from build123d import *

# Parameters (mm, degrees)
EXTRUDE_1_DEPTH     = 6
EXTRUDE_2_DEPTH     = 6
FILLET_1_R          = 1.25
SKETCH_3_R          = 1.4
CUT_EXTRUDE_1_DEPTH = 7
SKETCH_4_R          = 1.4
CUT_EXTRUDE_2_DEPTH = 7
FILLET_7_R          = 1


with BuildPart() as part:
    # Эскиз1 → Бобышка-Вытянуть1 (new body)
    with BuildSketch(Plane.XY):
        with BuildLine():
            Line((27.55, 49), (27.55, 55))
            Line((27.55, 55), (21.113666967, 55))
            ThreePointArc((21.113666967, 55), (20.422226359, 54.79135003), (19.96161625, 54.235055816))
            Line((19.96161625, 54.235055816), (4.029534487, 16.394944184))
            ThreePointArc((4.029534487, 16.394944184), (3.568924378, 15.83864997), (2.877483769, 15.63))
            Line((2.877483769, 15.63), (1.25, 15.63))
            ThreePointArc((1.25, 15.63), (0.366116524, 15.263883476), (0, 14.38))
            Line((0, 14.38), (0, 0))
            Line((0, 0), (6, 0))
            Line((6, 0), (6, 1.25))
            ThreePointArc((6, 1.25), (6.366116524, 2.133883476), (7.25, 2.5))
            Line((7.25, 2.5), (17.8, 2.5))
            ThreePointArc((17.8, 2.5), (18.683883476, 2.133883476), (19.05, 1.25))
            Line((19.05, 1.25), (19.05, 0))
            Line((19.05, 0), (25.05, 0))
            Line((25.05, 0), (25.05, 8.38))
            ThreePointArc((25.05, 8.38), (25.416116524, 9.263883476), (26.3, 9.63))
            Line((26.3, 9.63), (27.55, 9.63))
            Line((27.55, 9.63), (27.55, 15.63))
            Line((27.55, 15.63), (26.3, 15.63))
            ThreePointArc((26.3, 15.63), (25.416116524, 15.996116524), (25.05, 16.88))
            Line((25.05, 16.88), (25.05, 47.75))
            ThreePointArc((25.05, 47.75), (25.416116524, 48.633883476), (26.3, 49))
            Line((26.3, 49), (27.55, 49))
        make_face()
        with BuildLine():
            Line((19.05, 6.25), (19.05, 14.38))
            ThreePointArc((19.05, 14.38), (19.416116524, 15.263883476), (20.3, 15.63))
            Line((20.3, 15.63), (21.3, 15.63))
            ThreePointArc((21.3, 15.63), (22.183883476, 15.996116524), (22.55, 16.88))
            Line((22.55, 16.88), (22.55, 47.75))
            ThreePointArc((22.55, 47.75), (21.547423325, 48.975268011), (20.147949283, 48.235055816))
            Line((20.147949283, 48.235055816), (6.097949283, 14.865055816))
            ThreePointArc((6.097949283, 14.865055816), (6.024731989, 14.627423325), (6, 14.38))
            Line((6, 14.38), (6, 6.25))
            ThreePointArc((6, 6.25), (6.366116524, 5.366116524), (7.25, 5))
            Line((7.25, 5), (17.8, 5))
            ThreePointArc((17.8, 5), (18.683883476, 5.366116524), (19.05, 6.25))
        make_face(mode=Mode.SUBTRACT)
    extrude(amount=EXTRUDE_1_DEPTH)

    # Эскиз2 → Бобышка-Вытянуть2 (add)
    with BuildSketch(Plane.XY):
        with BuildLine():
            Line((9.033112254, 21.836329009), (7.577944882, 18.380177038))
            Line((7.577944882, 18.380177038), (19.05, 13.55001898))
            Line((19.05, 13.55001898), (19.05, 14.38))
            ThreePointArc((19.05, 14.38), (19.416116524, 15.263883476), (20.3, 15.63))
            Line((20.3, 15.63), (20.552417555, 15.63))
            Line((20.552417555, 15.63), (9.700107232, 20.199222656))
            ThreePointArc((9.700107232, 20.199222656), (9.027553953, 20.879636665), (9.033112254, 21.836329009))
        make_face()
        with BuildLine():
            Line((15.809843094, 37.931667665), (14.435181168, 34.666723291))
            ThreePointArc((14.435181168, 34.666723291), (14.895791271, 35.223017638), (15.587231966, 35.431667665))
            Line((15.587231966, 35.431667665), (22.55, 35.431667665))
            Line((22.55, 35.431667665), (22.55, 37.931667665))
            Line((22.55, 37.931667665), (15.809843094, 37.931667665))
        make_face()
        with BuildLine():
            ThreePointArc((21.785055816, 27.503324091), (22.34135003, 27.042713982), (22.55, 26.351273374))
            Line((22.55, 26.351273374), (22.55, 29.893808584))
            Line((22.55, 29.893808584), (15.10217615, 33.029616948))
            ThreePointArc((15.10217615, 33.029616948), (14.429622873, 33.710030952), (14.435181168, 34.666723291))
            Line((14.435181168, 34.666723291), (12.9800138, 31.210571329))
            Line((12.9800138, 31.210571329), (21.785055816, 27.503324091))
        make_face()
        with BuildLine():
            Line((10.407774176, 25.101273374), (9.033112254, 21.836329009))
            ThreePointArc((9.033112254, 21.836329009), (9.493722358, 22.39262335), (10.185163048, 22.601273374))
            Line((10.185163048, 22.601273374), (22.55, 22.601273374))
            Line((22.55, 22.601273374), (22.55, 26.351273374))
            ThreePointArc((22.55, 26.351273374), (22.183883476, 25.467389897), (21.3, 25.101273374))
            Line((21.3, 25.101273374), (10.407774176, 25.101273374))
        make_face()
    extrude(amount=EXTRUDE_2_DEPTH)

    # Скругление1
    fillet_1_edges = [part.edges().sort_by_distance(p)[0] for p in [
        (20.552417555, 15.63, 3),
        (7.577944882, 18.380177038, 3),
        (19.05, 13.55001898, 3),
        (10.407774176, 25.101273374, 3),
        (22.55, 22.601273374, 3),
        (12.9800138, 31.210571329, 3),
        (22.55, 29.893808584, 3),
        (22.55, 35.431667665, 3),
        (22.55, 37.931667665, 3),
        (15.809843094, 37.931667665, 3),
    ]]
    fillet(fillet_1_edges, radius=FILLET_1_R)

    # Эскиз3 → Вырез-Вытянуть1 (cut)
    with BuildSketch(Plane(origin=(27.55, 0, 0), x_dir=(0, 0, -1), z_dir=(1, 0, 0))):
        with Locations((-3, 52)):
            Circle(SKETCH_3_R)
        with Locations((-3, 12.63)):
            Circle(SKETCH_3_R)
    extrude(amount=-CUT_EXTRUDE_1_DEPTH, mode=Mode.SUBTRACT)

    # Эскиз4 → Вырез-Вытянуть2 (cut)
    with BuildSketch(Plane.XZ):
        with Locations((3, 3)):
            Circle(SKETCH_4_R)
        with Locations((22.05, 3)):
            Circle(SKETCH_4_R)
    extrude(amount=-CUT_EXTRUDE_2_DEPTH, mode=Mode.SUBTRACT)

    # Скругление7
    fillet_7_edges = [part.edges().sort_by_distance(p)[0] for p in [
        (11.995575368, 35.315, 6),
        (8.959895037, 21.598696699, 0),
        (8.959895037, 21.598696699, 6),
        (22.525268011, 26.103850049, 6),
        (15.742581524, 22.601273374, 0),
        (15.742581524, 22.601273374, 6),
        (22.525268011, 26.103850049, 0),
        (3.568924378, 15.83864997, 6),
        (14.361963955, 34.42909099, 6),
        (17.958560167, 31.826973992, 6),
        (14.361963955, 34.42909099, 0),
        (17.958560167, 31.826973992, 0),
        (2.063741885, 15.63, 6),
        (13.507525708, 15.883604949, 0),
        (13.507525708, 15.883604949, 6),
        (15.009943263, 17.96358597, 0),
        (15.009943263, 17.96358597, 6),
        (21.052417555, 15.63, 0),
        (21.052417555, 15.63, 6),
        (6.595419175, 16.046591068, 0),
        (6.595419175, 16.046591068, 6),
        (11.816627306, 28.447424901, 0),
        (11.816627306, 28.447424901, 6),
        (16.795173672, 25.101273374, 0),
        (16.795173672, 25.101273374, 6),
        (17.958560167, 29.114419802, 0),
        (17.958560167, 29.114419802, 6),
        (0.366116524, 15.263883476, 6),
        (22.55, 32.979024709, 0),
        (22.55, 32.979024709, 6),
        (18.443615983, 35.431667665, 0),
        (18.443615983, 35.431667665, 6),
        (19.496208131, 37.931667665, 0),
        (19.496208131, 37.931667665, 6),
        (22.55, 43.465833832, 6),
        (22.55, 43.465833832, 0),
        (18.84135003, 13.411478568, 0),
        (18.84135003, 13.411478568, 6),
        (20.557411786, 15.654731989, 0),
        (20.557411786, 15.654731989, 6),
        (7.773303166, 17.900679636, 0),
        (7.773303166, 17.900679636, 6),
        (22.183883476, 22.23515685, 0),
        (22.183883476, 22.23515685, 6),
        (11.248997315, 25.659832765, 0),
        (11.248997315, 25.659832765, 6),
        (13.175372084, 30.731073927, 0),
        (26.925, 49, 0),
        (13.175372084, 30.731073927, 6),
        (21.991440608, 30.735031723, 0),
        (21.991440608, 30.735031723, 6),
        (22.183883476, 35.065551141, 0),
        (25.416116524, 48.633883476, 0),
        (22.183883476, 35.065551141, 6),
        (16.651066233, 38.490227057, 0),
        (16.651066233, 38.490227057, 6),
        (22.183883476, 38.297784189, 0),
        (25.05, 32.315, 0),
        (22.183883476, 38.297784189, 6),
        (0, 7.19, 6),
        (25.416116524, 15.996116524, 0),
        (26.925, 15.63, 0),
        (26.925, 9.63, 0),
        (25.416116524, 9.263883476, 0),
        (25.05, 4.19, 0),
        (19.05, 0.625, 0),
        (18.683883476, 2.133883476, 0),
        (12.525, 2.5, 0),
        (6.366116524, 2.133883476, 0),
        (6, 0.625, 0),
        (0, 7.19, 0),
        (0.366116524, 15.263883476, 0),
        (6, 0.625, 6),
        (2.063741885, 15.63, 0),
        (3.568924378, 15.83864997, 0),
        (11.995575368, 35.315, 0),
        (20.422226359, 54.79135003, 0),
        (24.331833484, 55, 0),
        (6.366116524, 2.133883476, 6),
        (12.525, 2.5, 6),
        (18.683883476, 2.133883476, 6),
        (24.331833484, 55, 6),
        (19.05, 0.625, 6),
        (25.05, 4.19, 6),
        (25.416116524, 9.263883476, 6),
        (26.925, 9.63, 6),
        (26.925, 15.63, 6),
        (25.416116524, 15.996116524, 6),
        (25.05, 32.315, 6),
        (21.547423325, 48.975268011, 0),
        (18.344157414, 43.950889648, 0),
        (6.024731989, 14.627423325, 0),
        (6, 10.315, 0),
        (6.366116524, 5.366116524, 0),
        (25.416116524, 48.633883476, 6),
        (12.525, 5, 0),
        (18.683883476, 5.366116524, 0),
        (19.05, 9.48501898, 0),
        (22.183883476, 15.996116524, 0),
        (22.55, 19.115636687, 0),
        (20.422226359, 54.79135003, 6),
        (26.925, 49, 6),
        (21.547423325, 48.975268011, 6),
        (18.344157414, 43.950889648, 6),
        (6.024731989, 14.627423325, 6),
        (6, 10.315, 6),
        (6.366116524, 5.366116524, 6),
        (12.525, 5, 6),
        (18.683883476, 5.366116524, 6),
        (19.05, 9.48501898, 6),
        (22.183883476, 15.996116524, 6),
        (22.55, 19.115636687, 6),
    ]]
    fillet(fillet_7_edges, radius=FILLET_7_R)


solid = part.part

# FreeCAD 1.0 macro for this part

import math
import FreeCAD as App
import Part
import Sketcher
Q = App.Units.Quantity


def edges_at(feature, points):
    """Names of the edges that pass closest to the given points."""
    edges = feature.Shape.Edges
    near = lambda p: min(range(len(edges)), key=lambda i: edges[i].distToShape(Part.Vertex(*p))[0])
    return sorted({f"Edge{near(p) + 1}" for p in points})

doc = App.newDocument("Part")
body = doc.addObject("PartDesign::Body", "Body")

# Sketch on XY plane
sketch1 = doc.addObject("Sketcher::SketchObject", "Sketch")
body.addObject(sketch1)
sketch1.AttachmentSupport = (doc.XY_Plane, [""])
sketch1.MapMode = "FlatFace"
sketch1.addGeometry([
    Part.LineSegment(App.Vector(27.55, 49, 0), App.Vector(27.55, 55, 0)),  # 0
    Part.LineSegment(App.Vector(27.55, 55, 0), App.Vector(21.11, 55, 0)),  # 1
    Part.ArcOfCircle(Part.Circle(App.Vector(21.11, 53.75, 0), App.Vector(0, 0, 1), 1.25), math.radians(90), math.radians(157)),  # 2
    Part.LineSegment(App.Vector(19.96, 54.24, 0), App.Vector(4.03, 16.39, 0)),  # 3
    Part.ArcOfCircle(Part.Circle(App.Vector(2.88, 16.88, 0), App.Vector(0, 0, 1), 1.25), math.radians(-90), math.radians(-23)),  # 4
    Part.LineSegment(App.Vector(2.88, 15.63, 0), App.Vector(1.25, 15.63, 0)),  # 5
    Part.ArcOfCircle(Part.Circle(App.Vector(1.25, 14.38, 0), App.Vector(0, 0, 1), 1.25), math.radians(90), math.radians(180)),  # 6
    Part.LineSegment(App.Vector(0, 14.38, 0), App.Vector(0, 0, 0)),  # 7
    Part.LineSegment(App.Vector(0, 0, 0), App.Vector(6, 0, 0)),  # 8
    Part.LineSegment(App.Vector(6, 0, 0), App.Vector(6, 1.25, 0)),  # 9
    Part.ArcOfCircle(Part.Circle(App.Vector(7.25, 1.25, 0), App.Vector(0, 0, 1), 1.25), math.radians(90), math.radians(180)),  # 10
    Part.LineSegment(App.Vector(7.25, 2.5, 0), App.Vector(17.8, 2.5, 0)),  # 11
    Part.ArcOfCircle(Part.Circle(App.Vector(17.8, 1.25, 0), App.Vector(0, 0, 1), 1.25), math.radians(0), math.radians(90)),  # 12
    Part.LineSegment(App.Vector(19.05, 1.25, 0), App.Vector(19.05, 0, 0)),  # 13
    Part.LineSegment(App.Vector(19.05, 0, 0), App.Vector(25.05, 0, 0)),  # 14
    Part.LineSegment(App.Vector(25.05, 0, 0), App.Vector(25.05, 8.38, 0)),  # 15
    Part.ArcOfCircle(Part.Circle(App.Vector(26.3, 8.38, 0), App.Vector(0, 0, 1), 1.25), math.radians(90), math.radians(180)),  # 16
    Part.LineSegment(App.Vector(26.3, 9.63, 0), App.Vector(27.55, 9.63, 0)),  # 17
    Part.LineSegment(App.Vector(27.55, 9.63, 0), App.Vector(27.55, 15.63, 0)),  # 18
    Part.LineSegment(App.Vector(27.55, 15.63, 0), App.Vector(26.3, 15.63, 0)),  # 19
    Part.ArcOfCircle(Part.Circle(App.Vector(26.3, 16.88, 0), App.Vector(0, 0, 1), 1.25), math.radians(-180), math.radians(-90)),  # 20
    Part.LineSegment(App.Vector(25.05, 16.88, 0), App.Vector(25.05, 47.75, 0)),  # 21
    Part.ArcOfCircle(Part.Circle(App.Vector(26.3, 47.75, 0), App.Vector(0, 0, 1), 1.25), math.radians(90), math.radians(180)),  # 22
    Part.LineSegment(App.Vector(26.3, 49, 0), App.Vector(27.55, 49, 0)),  # 23
    Part.LineSegment(App.Vector(19.05, 14.38, 0), App.Vector(19.05, 6.25, 0)),  # 24
    Part.ArcOfCircle(Part.Circle(App.Vector(17.8, 6.25, 0), App.Vector(0, 0, 1), 1.25), math.radians(-90), math.radians(0)),  # 25
    Part.LineSegment(App.Vector(17.8, 5, 0), App.Vector(7.25, 5, 0)),  # 26
    Part.ArcOfCircle(Part.Circle(App.Vector(7.25, 6.25, 0), App.Vector(0, 0, 1), 1.25), math.radians(-180), math.radians(-90)),  # 27
    Part.LineSegment(App.Vector(6, 6.25, 0), App.Vector(6, 14.38, 0)),  # 28
    Part.ArcOfCircle(Part.Circle(App.Vector(7.25, 14.38, 0), App.Vector(0, 0, 1), 1.25), math.radians(157), math.radians(180)),  # 29
    Part.LineSegment(App.Vector(6.1, 14.87, 0), App.Vector(20.15, 48.24, 0)),  # 30
    Part.ArcOfCircle(Part.Circle(App.Vector(21.3, 47.75, 0), App.Vector(0, 0, 1), 1.25), math.radians(0), math.radians(157)),  # 31
    Part.LineSegment(App.Vector(22.55, 47.75, 0), App.Vector(22.55, 16.88, 0)),  # 32
    Part.ArcOfCircle(Part.Circle(App.Vector(21.3, 16.88, 0), App.Vector(0, 0, 1), 1.25), math.radians(-90), math.radians(0)),  # 33
    Part.LineSegment(App.Vector(21.3, 15.63, 0), App.Vector(20.3, 15.63, 0)),  # 34
    Part.ArcOfCircle(Part.Circle(App.Vector(20.3, 14.38, 0), App.Vector(0, 0, 1), 1.25), math.radians(90), math.radians(180)),  # 35
], False)
sketch1.addConstraint([
    Sketcher.Constraint("Coincident", 0, 2, 1, 1),
    Sketcher.Constraint("Tangent", 1, 2, 2, 1),
    Sketcher.Constraint("Tangent", 2, 2, 3, 1),
    Sketcher.Constraint("Tangent", 3, 2, 4, 2),
    Sketcher.Constraint("Tangent", 4, 1, 5, 1),
    Sketcher.Constraint("Tangent", 5, 2, 6, 1),
    Sketcher.Constraint("Tangent", 6, 2, 7, 1),
    Sketcher.Constraint("Coincident", 7, 2, 8, 1),
    Sketcher.Constraint("Coincident", 8, 2, 9, 1),
    Sketcher.Constraint("Tangent", 9, 2, 10, 2),
    Sketcher.Constraint("Tangent", 10, 1, 11, 1),
    Sketcher.Constraint("Tangent", 11, 2, 12, 2),
    Sketcher.Constraint("Tangent", 12, 1, 13, 1),
    Sketcher.Constraint("Coincident", 13, 2, 14, 1),
    Sketcher.Constraint("Coincident", 14, 2, 15, 1),
    Sketcher.Constraint("Tangent", 15, 2, 16, 2),
    Sketcher.Constraint("Tangent", 16, 1, 17, 1),
    Sketcher.Constraint("Coincident", 17, 2, 18, 1),
    Sketcher.Constraint("Coincident", 18, 2, 19, 1),
    Sketcher.Constraint("Tangent", 19, 2, 20, 2),
    Sketcher.Constraint("Tangent", 20, 1, 21, 1),
    Sketcher.Constraint("Tangent", 21, 2, 22, 2),
    Sketcher.Constraint("Tangent", 22, 1, 23, 1),
    Sketcher.Constraint("Coincident", 23, 2, 0, 1),
    Sketcher.Constraint("Tangent", 24, 2, 25, 2),
    Sketcher.Constraint("Tangent", 25, 1, 26, 1),
    Sketcher.Constraint("Tangent", 26, 2, 27, 2),
    Sketcher.Constraint("Tangent", 27, 1, 28, 1),
    Sketcher.Constraint("Tangent", 28, 2, 29, 2),
    Sketcher.Constraint("Tangent", 29, 1, 30, 1),
    Sketcher.Constraint("Tangent", 30, 2, 31, 2),
    Sketcher.Constraint("Tangent", 31, 1, 32, 1),
    Sketcher.Constraint("Tangent", 32, 2, 33, 2),
    Sketcher.Constraint("Tangent", 33, 1, 34, 1),
    Sketcher.Constraint("Tangent", 34, 2, 35, 1),
    Sketcher.Constraint("Tangent", 35, 2, 24, 1),
    Sketcher.Constraint("Vertical", 0),
    Sketcher.Constraint("Horizontal", 1),
    Sketcher.Constraint("Horizontal", 5),
    Sketcher.Constraint("Vertical", 7),
    Sketcher.Constraint("Horizontal", 8),
    Sketcher.Constraint("Vertical", 9),
    Sketcher.Constraint("Horizontal", 11),
    Sketcher.Constraint("Vertical", 13),
    Sketcher.Constraint("Horizontal", 14),
    Sketcher.Constraint("Vertical", 15),
    Sketcher.Constraint("Horizontal", 17),
    Sketcher.Constraint("Vertical", 18),
    Sketcher.Constraint("Horizontal", 19),
    Sketcher.Constraint("Vertical", 21),
    Sketcher.Constraint("Horizontal", 23),
    Sketcher.Constraint("Vertical", 24),
    Sketcher.Constraint("Horizontal", 26),
    Sketcher.Constraint("Vertical", 28),
    Sketcher.Constraint("Vertical", 32),
    Sketcher.Constraint("Horizontal", 34),
    Sketcher.Constraint("Coincident", 7, 2, -1, 1),
    Sketcher.Constraint("Equal", 2, 4),
    Sketcher.Constraint("Equal", 4, 6),
    Sketcher.Constraint("Equal", 6, 10),
    Sketcher.Constraint("Equal", 10, 12),
    Sketcher.Constraint("Equal", 12, 16),
    Sketcher.Constraint("Equal", 16, 20),
    Sketcher.Constraint("Equal", 20, 22),
    Sketcher.Constraint("Equal", 22, 25),
    Sketcher.Constraint("Equal", 25, 27),
    Sketcher.Constraint("Equal", 27, 29),
    Sketcher.Constraint("Equal", 29, 31),
    Sketcher.Constraint("Equal", 31, 33),
    Sketcher.Constraint("Equal", 33, 35),
    Sketcher.Constraint("PointOnObject", 13, 2, -1),
    Sketcher.Constraint("Parallel", 3, 30),
    Sketcher.Constraint("Horizontal", 4, 3, 20, 3),
    Sketcher.Constraint("Horizontal", 6, 3, 29, 3),
    Sketcher.Constraint("Horizontal", 22, 3, 31, 3),
    Sketcher.Constraint("Horizontal", 20, 3, 33, 3),
    Sketcher.Constraint("Vertical", 16, 3, 20, 3),
    Sketcher.Constraint("Vertical", 12, 3, 25, 3),
    Sketcher.Constraint("Vertical", 10, 3, 27, 3),
    Sketcher.Constraint("Vertical", 0, 2, 17, 2),
    Sketcher.Constraint("Equal", 8, 14),
    Sketcher.Constraint("Equal", 14, 0),
    Sketcher.Constraint("Equal", 23, 9),
    Sketcher.Constraint("Equal", 0, 18),
    Sketcher.Constraint("DistanceX", 8, 1, 8, 2, Q("6 mm")),
    Sketcher.Constraint("DistanceX", 34, 2, 34, 1, Q("1 mm")),
    Sketcher.Constraint("Radius", 2, Q("1.25 mm")),
    Sketcher.Constraint("DistanceY", -1, 1, 0, 2, Q("55 mm")),
    Sketcher.Constraint("DistanceY", -1, 1, 25, 1, Q("5 mm")),
    Sketcher.Constraint("DistanceY", 12, 3, 25, 3, Q("5 mm")),
    Sketcher.Constraint("DistanceX", 11, 1, 11, 2, Q("10.55 mm")),
    Sketcher.Constraint("DistanceY", 7, 2, 7, 1, Q("14.38 mm")),
    Sketcher.Constraint("DistanceX", 1, 2, 1, 1, Q("6.436333 mm")),
])
pad1 = doc.addObject("PartDesign::Pad", "Pad")
body.addObject(pad1)
pad1.Profile = sketch1
pad1.Length = 6

# Sketch on XY plane
sketch2 = doc.addObject("Sketcher::SketchObject", "Sketch001")
body.addObject(sketch2)
sketch2.AttachmentSupport = (doc.XY_Plane, [""])
sketch2.MapMode = "FlatFace"
sketch2.addGeometry([
    Part.LineSegment(App.Vector(9.03, 21.84, 0), App.Vector(7.58, 18.38, 0)),  # 0
    Part.LineSegment(App.Vector(7.58, 18.38, 0), App.Vector(19.05, 13.55, 0)),  # 1
    Part.LineSegment(App.Vector(19.05, 13.55, 0), App.Vector(19.05, 14.38, 0)),  # 2
    Part.ArcOfCircle(Part.Circle(App.Vector(20.3, 14.38, 0), App.Vector(0, 0, 1), 1.25), math.radians(90), math.radians(180)),  # 3
    Part.LineSegment(App.Vector(20.3, 15.63, 0), App.Vector(20.55, 15.63, 0)),  # 4
    Part.LineSegment(App.Vector(20.55, 15.63, 0), App.Vector(9.7, 20.2, 0)),  # 5
    Part.ArcOfCircle(Part.Circle(App.Vector(10.19, 21.35, 0), App.Vector(0, 0, 1), 1.25), math.radians(157), math.radians(247)),  # 6
    Part.LineSegment(App.Vector(15.81, 37.93, 0), App.Vector(14.44, 34.67, 0)),  # 7
    Part.ArcOfCircle(Part.Circle(App.Vector(15.59, 34.18, 0), App.Vector(0, 0, 1), 1.25), math.radians(90), math.radians(157)),  # 8
    Part.LineSegment(App.Vector(15.59, 35.43, 0), App.Vector(22.55, 35.43, 0)),  # 9
    Part.LineSegment(App.Vector(22.55, 35.43, 0), App.Vector(22.55, 37.93, 0)),  # 10
    Part.LineSegment(App.Vector(22.55, 37.93, 0), App.Vector(15.81, 37.93, 0)),  # 11
    Part.ArcOfCircle(Part.Circle(App.Vector(21.3, 26.35, 0), App.Vector(0, 0, 1), 1.25), math.radians(0), math.radians(67)),  # 12
    Part.LineSegment(App.Vector(22.55, 26.35, 0), App.Vector(22.55, 29.89, 0)),  # 13
    Part.LineSegment(App.Vector(22.55, 29.89, 0), App.Vector(15.1, 33.03, 0)),  # 14
    Part.ArcOfCircle(Part.Circle(App.Vector(15.59, 34.18, 0), App.Vector(0, 0, 1), 1.25), math.radians(157), math.radians(247)),  # 15
    Part.LineSegment(App.Vector(14.44, 34.67, 0), App.Vector(12.98, 31.21, 0)),  # 16
    Part.LineSegment(App.Vector(12.98, 31.21, 0), App.Vector(21.79, 27.5, 0)),  # 17
    Part.LineSegment(App.Vector(10.41, 25.1, 0), App.Vector(9.03, 21.84, 0)),  # 18
    Part.ArcOfCircle(Part.Circle(App.Vector(10.19, 21.35, 0), App.Vector(0, 0, 1), 1.25), math.radians(90), math.radians(157)),  # 19
    Part.LineSegment(App.Vector(10.19, 22.6, 0), App.Vector(22.55, 22.6, 0)),  # 20
    Part.LineSegment(App.Vector(22.55, 22.6, 0), App.Vector(22.55, 26.35, 0)),  # 21
    Part.ArcOfCircle(Part.Circle(App.Vector(21.3, 26.35, 0), App.Vector(0, 0, 1), 1.25), math.radians(-90), math.radians(0)),  # 22
    Part.LineSegment(App.Vector(21.3, 25.1, 0), App.Vector(10.41, 25.1, 0)),  # 23
], False)
sketch2.addConstraint([
    Sketcher.Constraint("Coincident", 0, 2, 1, 1),
    Sketcher.Constraint("Coincident", 1, 2, 2, 1),
    Sketcher.Constraint("Tangent", 2, 2, 3, 2),
    Sketcher.Constraint("Tangent", 3, 1, 4, 1),
    Sketcher.Constraint("Coincident", 4, 2, 5, 1),
    Sketcher.Constraint("Tangent", 5, 2, 6, 2),
    Sketcher.Constraint("Tangent", 6, 1, 0, 1),
    Sketcher.Constraint("Tangent", 7, 2, 8, 2),
    Sketcher.Constraint("Tangent", 8, 1, 9, 1),
    Sketcher.Constraint("Coincident", 9, 2, 10, 1),
    Sketcher.Constraint("Coincident", 10, 2, 11, 1),
    Sketcher.Constraint("Coincident", 11, 2, 7, 1),
    Sketcher.Constraint("Tangent", 12, 1, 13, 1),
    Sketcher.Constraint("Coincident", 13, 2, 14, 1),
    Sketcher.Constraint("Tangent", 14, 2, 15, 2),
    Sketcher.Constraint("Tangent", 15, 1, 16, 1),
    Sketcher.Constraint("Coincident", 16, 2, 17, 1),
    Sketcher.Constraint("Tangent", 17, 2, 12, 2),
    Sketcher.Constraint("Tangent", 18, 2, 19, 2),
    Sketcher.Constraint("Tangent", 19, 1, 20, 1),
    Sketcher.Constraint("Coincident", 20, 2, 21, 1),
    Sketcher.Constraint("Tangent", 21, 2, 22, 2),
    Sketcher.Constraint("Tangent", 22, 1, 23, 1),
    Sketcher.Constraint("Coincident", 23, 2, 18, 1),
    Sketcher.Constraint("Vertical", 2),
    Sketcher.Constraint("Horizontal", 4),
    Sketcher.Constraint("Horizontal", 9),
    Sketcher.Constraint("Vertical", 10),
    Sketcher.Constraint("Horizontal", 11),
    Sketcher.Constraint("Vertical", 13),
    Sketcher.Constraint("Horizontal", 20),
    Sketcher.Constraint("Vertical", 21),
    Sketcher.Constraint("Horizontal", 23),
    Sketcher.Constraint("Coincident", 15, 3, 8, 3),
    Sketcher.Constraint("Coincident", 19, 3, 6, 3),
    Sketcher.Constraint("Coincident", 22, 3, 12, 3),
    Sketcher.Constraint("Coincident", 15, 1, 7, 2),
    Sketcher.Constraint("Coincident", 18, 2, 6, 1),
    Sketcher.Constraint("Equal", 3, 6),
    Sketcher.Constraint("Equal", 6, 8),
    Sketcher.Constraint("Equal", 8, 12),
    Sketcher.Constraint("Equal", 19, 22),
    Sketcher.Constraint("Perpendicular", 0, 1),
    Sketcher.Constraint("Parallel", 1, 5),
    Sketcher.Constraint("Perpendicular", 5, 7),
    Sketcher.Constraint("Perpendicular", 7, 14),
    Sketcher.Constraint("Perpendicular", 16, 17),
    Sketcher.Constraint("Vertical", 10, 2, 12, 1),
    Sketcher.Constraint("Equal", 0, 16),
    Sketcher.Constraint("Equal", 7, 18),
    Sketcher.Constraint("Radius", 3, Q("1.25 mm")),
    Sketcher.Constraint("DistanceY", 10, 1, 10, 2, Q("2.5 mm")),
    Sketcher.Constraint("DistanceX", 3, 3, 12, 3, Q("1 mm")),
    Sketcher.Constraint("DistanceX", -1, 1, 3, 3, Q("20.3 mm")),
    Sketcher.Constraint("Distance", 0, Q("3.75 mm")),
    Sketcher.Constraint("DistanceY", -1, 1, 3, 3, Q("14.38 mm")),
    Sketcher.Constraint("DistanceX", 9, 1, 9, 2, Q("6.962768 mm")),
    Sketcher.Constraint("DistanceY", 2, 1, 2, 2, Q("0.829981 mm")),
    Sketcher.Constraint("Distance", 1, Q("12.447428 mm")),
    Sketcher.Constraint("Distance", 5, Q("11.774992 mm")),
])
pad2 = doc.addObject("PartDesign::Pad", "Pad001")
body.addObject(pad2)
pad2.Profile = sketch2
pad2.Length = 6
doc.recompute()

fillet = doc.addObject("PartDesign::Fillet", "Fillet")
body.addObject(fillet)
fillet.Base = (pad2, edges_at(pad2, [
    (20.552, 15.63, 3),
    (7.578, 18.38, 3),
    (19.05, 13.55, 3),
    (10.408, 25.101, 3),
    (22.55, 22.601, 3),
    (12.98, 31.211, 3),
    (22.55, 29.894, 3),
    (22.55, 35.432, 3),
    (22.55, 37.932, 3),
    (15.81, 37.932, 3),
]))
fillet.Radius = 1.25

# Sketch on YZ plane
sketch3 = doc.addObject("Sketcher::SketchObject", "Sketch002")
body.addObject(sketch3)
sketch3.AttachmentSupport = (doc.YZ_Plane, [""])
sketch3.MapMode = "FlatFace"
sketch3.AttachmentOffset = App.Placement(App.Vector(0, 0, 27.55), App.Rotation())
sketch3.addGeometry([
    Part.Circle(App.Vector(52, 3, 0), App.Vector(0, 0, 1), 1.4),
    Part.Circle(App.Vector(12.6, 3, 0), App.Vector(0, 0, 1), 1.4),
], False)
sketch3.addConstraint([
    Sketcher.Constraint("Equal", 0, 1),
    Sketcher.Constraint("Horizontal", 0, 3, 1, 3),
    Sketcher.Constraint("Diameter", 0, Q("2.8 mm")),
    Sketcher.Constraint("DistanceX", -1, 1, 0, 3, Q("52 mm")),
    Sketcher.Constraint("DistanceY", -1, 1, 0, 3, Q("3 mm")),
    Sketcher.Constraint("DistanceX", -1, 1, 1, 3, Q("12.63 mm")),
])
pocket1 = doc.addObject("PartDesign::Pocket", "Pocket")
body.addObject(pocket1)
pocket1.Profile = sketch3
pocket1.Length = 7

# Sketch on XZ plane
sketch4 = doc.addObject("Sketcher::SketchObject", "Sketch003")
body.addObject(sketch4)
sketch4.AttachmentSupport = (doc.XZ_Plane, [""])
sketch4.MapMode = "FlatFace"
sketch4.addGeometry([
    Part.Circle(App.Vector(3, 3, 0), App.Vector(0, 0, 1), 1.4),
    Part.Circle(App.Vector(22.1, 3, 0), App.Vector(0, 0, 1), 1.4),
], False)
sketch4.addConstraint([
    Sketcher.Constraint("Equal", 0, 1),
    Sketcher.Constraint("Horizontal", 0, 3, 1, 3),
    Sketcher.Constraint("Diameter", 0, Q("2.8 mm")),
    Sketcher.Constraint("DistanceX", -1, 1, 0, 3, Q("3 mm")),
    Sketcher.Constraint("DistanceY", -1, 1, 0, 3, Q("3 mm")),
    Sketcher.Constraint("DistanceX", -1, 1, 1, 3, Q("22.05 mm")),
])
pocket2 = doc.addObject("PartDesign::Pocket", "Pocket001")
body.addObject(pocket2)
pocket2.Profile = sketch4
pocket2.Length = 7
doc.recompute()

fillet2 = doc.addObject("PartDesign::Fillet", "Fillet001")
body.addObject(fillet2)
fillet2.Base = (pocket2, edges_at(pocket2, [
    (11.996, 35.315, 6),
    (9.028, 20.88, 0),
    (9.028, 20.88, 6),
    (22.184, 25.467, 6),
    (15.743, 22.601, 0),
    (15.743, 22.601, 6),
    (22.184, 25.467, 0),
    (3.569, 15.839, 6),
    (14.43, 33.71, 6),
    (17.959, 31.827, 6),
    (14.43, 33.71, 0),
    (17.959, 31.827, 0),
    (2.064, 15.63, 6),
    (13.508, 15.884, 0),
    (13.508, 15.884, 6),
    (15.01, 17.964, 0),
    (15.01, 17.964, 6),
    (21.052, 15.63, 0),
    (21.052, 15.63, 6),
    (6.595, 16.047, 0),
    (6.595, 16.047, 6),
    (11.817, 28.447, 0),
    (11.817, 28.447, 6),
    (16.795, 25.101, 0),
    (16.795, 25.101, 6),
    (17.959, 29.114, 0),
    (17.959, 29.114, 6),
    (0.366, 15.264, 6),
    (22.55, 32.979, 0),
    (22.55, 32.979, 6),
    (18.444, 35.432, 0),
    (18.444, 35.432, 6),
    (19.496, 37.932, 0),
    (19.496, 37.932, 6),
    (22.55, 43.466, 6),
    (22.55, 43.466, 0),
    (18.841, 13.411, 0),
    (18.841, 13.411, 6),
    (20.557, 15.655, 0),
    (20.557, 15.655, 6),
    (7.773, 17.901, 0),
    (7.773, 17.901, 6),
    (22.184, 22.235, 0),
    (22.184, 22.235, 6),
    (11.249, 25.66, 0),
    (11.249, 25.66, 6),
    (13.175, 30.731, 0),
    (26.925, 49, 0),
    (13.175, 30.731, 6),
    (21.991, 30.735, 0),
    (21.991, 30.735, 6),
    (22.184, 35.066, 0),
    (25.416, 48.634, 0),
    (22.184, 35.066, 6),
    (16.651, 38.49, 0),
    (16.651, 38.49, 6),
    (22.184, 38.298, 0),
    (25.05, 32.315, 0),
    (22.184, 38.298, 6),
    (0, 7.19, 6),
    (25.416, 15.996, 0),
    (26.925, 15.63, 0),
    (26.925, 9.63, 0),
    (25.416, 9.264, 0),
    (25.05, 4.19, 0),
    (19.05, 0.625, 0),
    (18.684, 2.134, 0),
    (12.525, 2.5, 0),
    (6.366, 2.134, 0),
    (6, 0.625, 0),
    (0, 7.19, 0),
    (0.366, 15.264, 0),
    (6, 0.625, 6),
    (2.064, 15.63, 0),
    (3.569, 15.839, 0),
    (11.996, 35.315, 0),
    (20.422, 54.791, 0),
    (24.332, 55, 0),
    (6.366, 2.134, 6),
    (12.525, 2.5, 6),
    (18.684, 2.134, 6),
    (24.332, 55, 6),
    (19.05, 0.625, 6),
    (25.05, 4.19, 6),
    (25.416, 9.264, 6),
    (26.925, 9.63, 6),
    (26.925, 15.63, 6),
    (25.416, 15.996, 6),
    (25.05, 32.315, 6),
    (21.547, 48.975, 0),
    (18.344, 43.951, 0),
    (6.025, 14.627, 0),
    (6, 10.315, 0),
    (6.366, 5.366, 0),
    (25.416, 48.634, 6),
    (12.525, 5, 0),
    (18.684, 5.366, 0),
    (19.05, 9.485, 0),
    (22.184, 15.996, 0),
    (22.55, 19.116, 0),
    (20.422, 54.791, 6),
    (26.925, 49, 6),
    (21.547, 48.975, 6),
    (18.344, 43.951, 6),
    (6.025, 14.627, 6),
    (6, 10.315, 6),
    (6.366, 5.366, 6),
    (12.525, 5, 6),
    (18.684, 5.366, 6),
    (19.05, 9.485, 6),
    (22.184, 15.996, 6),
    (22.55, 19.116, 6),
]))
fillet2.Radius = 1

doc.recompute()
